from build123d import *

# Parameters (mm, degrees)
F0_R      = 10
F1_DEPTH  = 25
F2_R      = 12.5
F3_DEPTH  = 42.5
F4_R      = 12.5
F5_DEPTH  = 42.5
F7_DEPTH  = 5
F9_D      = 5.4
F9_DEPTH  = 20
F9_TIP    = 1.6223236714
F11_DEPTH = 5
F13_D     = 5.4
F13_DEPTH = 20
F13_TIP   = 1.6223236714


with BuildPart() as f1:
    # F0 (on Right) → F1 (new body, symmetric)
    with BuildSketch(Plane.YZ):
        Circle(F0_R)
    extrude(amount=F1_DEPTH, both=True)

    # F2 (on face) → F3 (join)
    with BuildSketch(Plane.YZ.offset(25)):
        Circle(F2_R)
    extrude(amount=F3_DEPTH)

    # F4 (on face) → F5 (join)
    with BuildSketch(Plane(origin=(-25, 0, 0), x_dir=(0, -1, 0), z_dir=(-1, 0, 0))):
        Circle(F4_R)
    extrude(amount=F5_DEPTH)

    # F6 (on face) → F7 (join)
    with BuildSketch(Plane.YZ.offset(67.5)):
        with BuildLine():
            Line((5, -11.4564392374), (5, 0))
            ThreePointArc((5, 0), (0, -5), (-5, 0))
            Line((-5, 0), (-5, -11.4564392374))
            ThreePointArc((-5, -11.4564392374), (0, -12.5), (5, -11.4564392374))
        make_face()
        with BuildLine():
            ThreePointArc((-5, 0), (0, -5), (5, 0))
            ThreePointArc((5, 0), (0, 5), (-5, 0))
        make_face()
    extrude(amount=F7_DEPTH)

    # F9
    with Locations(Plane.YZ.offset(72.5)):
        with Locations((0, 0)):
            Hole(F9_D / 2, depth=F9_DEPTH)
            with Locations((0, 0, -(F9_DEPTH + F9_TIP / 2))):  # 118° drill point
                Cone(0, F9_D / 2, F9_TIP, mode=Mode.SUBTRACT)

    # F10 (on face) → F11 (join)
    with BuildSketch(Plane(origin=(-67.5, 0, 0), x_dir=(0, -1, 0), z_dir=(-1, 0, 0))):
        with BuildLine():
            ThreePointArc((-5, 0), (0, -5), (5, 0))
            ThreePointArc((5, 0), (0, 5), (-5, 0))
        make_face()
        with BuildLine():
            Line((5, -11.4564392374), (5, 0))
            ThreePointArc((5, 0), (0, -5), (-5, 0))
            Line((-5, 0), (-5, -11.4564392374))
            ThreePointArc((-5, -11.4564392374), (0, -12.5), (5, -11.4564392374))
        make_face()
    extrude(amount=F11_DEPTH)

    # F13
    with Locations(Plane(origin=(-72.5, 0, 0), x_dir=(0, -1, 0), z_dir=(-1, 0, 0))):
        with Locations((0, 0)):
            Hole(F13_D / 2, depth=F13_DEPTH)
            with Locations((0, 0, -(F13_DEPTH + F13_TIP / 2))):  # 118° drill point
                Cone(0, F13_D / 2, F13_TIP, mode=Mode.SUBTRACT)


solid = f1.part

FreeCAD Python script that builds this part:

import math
import FreeCAD as App
import Part
import Sketcher
from FreeCAD import Vector
Q = App.Units.Quantity

doc = App.newDocument("Part")
body = doc.addObject("PartDesign::Body", "Body")

sketch1 = body.newObject("Sketcher::SketchObject", "Sketch")
sketch1.AttachmentSupport = (doc.getObject("YZ_Plane"), [""])
sketch1.MapMode = "FlatFace"
sketch1.addGeometry(Part.Circle(Vector(0, 0, 0), Vector(0, 0, 1), 10), False)
sketch1.addConstraint([
    Sketcher.Constraint("Coincident", 0, 3, -1, 1),
    Sketcher.Constraint("Diameter", 0, Q("20 mm")),
])
pad1 = body.newObject("PartDesign::Pad", "Pad")
pad1.Profile = sketch1
pad1.Length = 50
pad1.Midplane = True

sketch2 = body.newObject("Sketcher::SketchObject", "Sketch001")
sketch2.AttachmentSupport = (doc.getObject("YZ_Plane"), [""])
sketch2.MapMode = "FlatFace"
sketch2.AttachmentOffset = App.Placement(Vector(0, 0, 25), App.Rotation())
sketch2.addGeometry(Part.Circle(Vector(0, 0, 0), Vector(0, 0, 1), 12), False)
sketch2.addConstraint([
    Sketcher.Constraint("Coincident", 0, 3, -1, 1),
    Sketcher.Constraint("Diameter", 0, Q("25 mm")),
])
pad2 = body.newObject("PartDesign::Pad", "Pad001")
pad2.Profile = sketch2
pad2.Length = 42.5

sketch3 = body.newObject("Sketcher::SketchObject", "Sketch002")
sketch3.AttachmentSupport = (doc.getObject("YZ_Plane"), [""])
sketch3.MapMode = "FlatFace"
sketch3.AttachmentOffset = App.Placement(Vector(0, 0, -25), App.Rotation())
sketch3.addGeometry(Part.Circle(Vector(0, 0, 0), Vector(0, 0, 1), 12), False)
sketch3.addConstraint([
    Sketcher.Constraint("Coincident", 0, 3, -1, 1),
    Sketcher.Constraint("Diameter", 0, Q("25 mm")),
])
pad3 = body.newObject("PartDesign::Pad", "Pad002")
pad3.Profile = sketch3
pad3.Length = 42.5
pad3.Reversed = True

sketch4 = body.newObject("Sketcher::SketchObject", "Sketch003")
sketch4.AttachmentSupport = (doc.getObject("YZ_Plane"), [""])
sketch4.MapMode = "FlatFace"
sketch4.AttachmentOffset = App.Placement(Vector(0, 0, 67.5), App.Rotation())
sketch4.addGeometry([
    Part.LineSegment(Vector(5, -11, 0), Vector(5, 0, 0)),
    Part.ArcOfCircle(Part.Circle(Vector(0, 0, 0), Vector(0, 0, 1), 5), math.radians(0), math.radians(180)),
    Part.LineSegment(Vector(-5, 0, 0), Vector(-5, -11, 0)),
    Part.ArcOfCircle(Part.Circle(Vector(0, 0, 0), Vector(0, 0, 1), 12), math.radians(-114), math.radians(-66)),
], False)
sketch4.addConstraint([
    Sketcher.Constraint("Tangent", 0, 2, 1, 1),
    Sketcher.Constraint("Tangent", 1, 2, 2, 1),
    Sketcher.Constraint("Coincident", 2, 2, 3, 1),
    Sketcher.Constraint("Coincident", 3, 2, 0, 1),
    Sketcher.Constraint("Vertical", 0),
    Sketcher.Constraint("Vertical", 2),
    Sketcher.Constraint("Coincident", 1, 3, -1, 1),
    Sketcher.Constraint("Coincident", 3, 3, -1, 1),
    Sketcher.Constraint("Radius", 1, Q("5 mm")),
    Sketcher.Constraint("Radius", 3, Q("12.5 mm")),
])
pad4 = body.newObject("PartDesign::Pad", "Pad003")
pad4.Profile = sketch4
pad4.Length = 5

sketch5 = body.newObject("Sketcher::SketchObject", "Sketch004")
sketch5.AttachmentSupport = (doc.getObject("YZ_Plane"), [""])
sketch5.MapMode = "FlatFace"
sketch5.AttachmentOffset = App.Placement(Vector(0, 0, 72.5), App.Rotation())
sketch5.addGeometry(Part.Circle(Vector(0, 0, 0), Vector(0, 0, 1), 2.7), False)
sketch5.addConstraint([
    Sketcher.Constraint("Coincident", 0, 3, -1, 1),
    Sketcher.Constraint("Diameter", 0, Q("5.4 mm")),
])
doc.recompute()
hole = body.newObject("PartDesign::Hole", "Hole")
hole.Profile = sketch5
hole.ThreadType = "None"
hole.Diameter = 5.4
hole.DepthType = "Dimension"
hole.Depth = 20
hole.DrillPoint = "Angled"
hole.DrillPointAngle = 118

sketch6 = body.newObject("Sketcher::SketchObject", "Sketch005")
sketch6.AttachmentSupport = (doc.getObject("YZ_Plane"), [""])
sketch6.MapMode = "FlatFace"
sketch6.AttachmentOffset = App.Placement(Vector(0, 0, -67.5), App.Rotation())
sketch6.addGeometry([
    Part.ArcOfCircle(Part.Circle(Vector(0, 0, 0), Vector(0, 0, 1), 5), math.radians(0), math.radians(180)),
    Part.LineSegment(Vector(5, 0, 0), Vector(5, -11, 0)),
    Part.ArcOfCircle(Part.Circle(Vector(0, 0, 0), Vector(0, 0, 1), 12), math.radians(-114), math.radians(-66)),
    Part.LineSegment(Vector(-5, -11, 0), Vector(-5, 0, 0)),
], False)
sketch6.addConstraint([
    Sketcher.Constraint("Tangent", 0, 1, 1, 1),
    Sketcher.Constraint("Coincident", 1, 2, 2, 2),
    Sketcher.Constraint("Coincident", 2, 1, 3, 1),
    Sketcher.Constraint("Tangent", 3, 2, 0, 2),
    Sketcher.Constraint("Vertical", 1),
    Sketcher.Constraint("Vertical", 3),
    Sketcher.Constraint("Coincident", 0, 3, -1, 1),
    Sketcher.Constraint("Coincident", 2, 3, -1, 1),
    Sketcher.Constraint("Radius", 0, Q("5 mm")),
    Sketcher.Constraint("Radius", 2, Q("12.5 mm")),
])
pad5 = body.newObject("PartDesign::Pad", "Pad004")
pad5.Profile = sketch6
pad5.Length = 5
pad5.Reversed = True

sketch7 = body.newObject("Sketcher::SketchObject", "Sketch006")
sketch7.AttachmentSupport = (doc.getObject("YZ_Plane"), [""])
sketch7.MapMode = "FlatFace"
sketch7.AttachmentOffset = App.Placement(Vector(0, 0, -72.5), App.Rotation())
sketch7.addGeometry(Part.Circle(Vector(0, 0, 0), Vector(0, 0, 1), 2.7), False)
sketch7.addConstraint([
    Sketcher.Constraint("Coincident", 0, 3, -1, 1),
    Sketcher.Constraint("Diameter", 0, Q("5.4 mm")),
])
doc.recompute()
hole2 = body.newObject("PartDesign::Hole", "Hole001")
hole2.Profile = sketch7
hole2.ThreadType = "None"
hole2.Diameter = 5.4
hole2.DepthType = "Dimension"
hole2.Depth = 20
hole2.DrillPoint = "Angled"
hole2.DrillPointAngle = 118
hole2.Reversed = True

doc.recompute()
